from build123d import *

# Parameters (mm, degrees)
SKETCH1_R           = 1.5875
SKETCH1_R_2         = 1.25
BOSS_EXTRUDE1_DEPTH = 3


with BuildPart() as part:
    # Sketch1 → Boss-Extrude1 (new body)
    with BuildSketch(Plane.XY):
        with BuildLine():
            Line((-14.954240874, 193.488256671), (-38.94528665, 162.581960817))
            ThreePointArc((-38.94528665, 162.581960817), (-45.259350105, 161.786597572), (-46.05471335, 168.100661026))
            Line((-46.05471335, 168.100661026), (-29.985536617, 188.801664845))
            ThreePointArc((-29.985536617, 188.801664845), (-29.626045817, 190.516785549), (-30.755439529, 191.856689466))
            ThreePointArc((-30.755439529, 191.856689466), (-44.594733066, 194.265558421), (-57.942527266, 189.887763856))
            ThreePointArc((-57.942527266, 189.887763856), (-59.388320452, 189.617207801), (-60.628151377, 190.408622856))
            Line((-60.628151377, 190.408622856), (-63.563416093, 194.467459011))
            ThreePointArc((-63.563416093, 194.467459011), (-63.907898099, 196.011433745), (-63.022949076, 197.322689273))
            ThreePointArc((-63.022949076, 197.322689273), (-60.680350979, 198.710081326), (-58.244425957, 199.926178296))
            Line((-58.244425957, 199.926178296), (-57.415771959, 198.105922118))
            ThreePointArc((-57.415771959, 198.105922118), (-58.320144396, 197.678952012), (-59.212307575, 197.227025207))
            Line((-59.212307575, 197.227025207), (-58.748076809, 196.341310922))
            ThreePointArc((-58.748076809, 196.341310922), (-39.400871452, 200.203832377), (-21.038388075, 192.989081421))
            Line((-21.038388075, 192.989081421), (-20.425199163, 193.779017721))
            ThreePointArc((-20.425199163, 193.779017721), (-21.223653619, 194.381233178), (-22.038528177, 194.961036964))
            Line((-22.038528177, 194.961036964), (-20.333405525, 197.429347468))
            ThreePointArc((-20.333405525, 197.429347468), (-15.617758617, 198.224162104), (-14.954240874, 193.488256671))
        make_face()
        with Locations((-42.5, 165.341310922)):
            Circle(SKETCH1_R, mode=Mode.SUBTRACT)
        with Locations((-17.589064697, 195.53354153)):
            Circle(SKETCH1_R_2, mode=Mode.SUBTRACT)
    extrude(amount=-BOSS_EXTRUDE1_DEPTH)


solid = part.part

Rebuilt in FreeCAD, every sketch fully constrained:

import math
import FreeCAD as App
import Part
import Sketcher

V = App.Vector
Q = App.Units.Quantity

doc = App.newDocument("Part")
params = doc.addObject("Spreadsheet::Sheet", "Params")
for row, (alias, value) in enumerate([
    ("sketch1_radius", "36.000001 mm"),
    ("sketch1_radius2", "35 mm"),
    ("sketch1_radius3", "38 mm"),
    ("sketch1_radius4", "2 mm"),
    ("sketch1_radius5", "29 mm"),
    ("pad1_length", "3 mm"),
], start=1):
    params.set(f"A{row}", alias)
    params.set(f"B{row}", "=" + value)
    params.setAlias(f"B{row}", alias)

body = doc.addObject("PartDesign::Body", "Body")

# Sketch on XY plane
sketch1 = body.newObject("Sketcher::SketchObject", "Sketch")
sketch1.AttachmentSupport = (doc.getObject("XY_Plane"), [""])
sketch1.MapMode = "FlatFace"
sketch1.addGeometry(Part.LineSegment(V(-38.9, 162.6, 0), V(-15, 193.5, 0)), False)
sketch1.addGeometry(Part.ArcOfCircle(Part.Circle(V(-17.6, 195.5, 0), V(0, 0, 1), 3.3), math.radians(-38), math.radians(145)), False)
sketch1.addGeometry(Part.LineSegment(V(-20.3, 197.4, 0), V(-22, 195, 0)), False)
sketch1.addGeometry(Part.ArcOfCircle(Part.Circle(V(-42.5, 165.3, 0), V(0, 0, 1), 36), math.radians(52.18), math.radians(55.36)), False)
sketch1.addGeometry(Part.LineSegment(V(-20.4, 193.8, 0), V(-21, 193, 0)), False)
sketch1.addGeometry(Part.ArcOfCircle(Part.Circle(V(-42.5, 165.3, 0), V(0, 0, 1), 35), math.radians(52), math.radians(118)), False)
sketch1.addGeometry(Part.LineSegment(V(-58.7, 196.3, 0), V(-59.2, 197.2, 0)), False)
sketch1.addGeometry(Part.ArcOfCircle(Part.Circle(V(-42.5, 165.3, 0), V(0, 0, 1), 36), math.radians(114.48), math.radians(117.66)), False)
sketch1.addGeometry(Part.LineSegment(V(-57.4, 198.1, 0), V(-58.2, 199.9, 0)), False)
sketch1.addGeometry(Part.ArcOfCircle(Part.Circle(V(-42.5, 165.3, 0), V(0, 0, 1), 38), math.radians(114.48), math.radians(122.69)), False)
sketch1.addGeometry(Part.ArcOfCircle(Part.Circle(V(-61.9, 195.6, 0), V(0, 0, 1), 2), math.radians(123), math.radians(216)), False)
sketch1.addGeometry(Part.LineSegment(V(-63.6, 194.5, 0), V(-60.6, 190.4, 0)), False)
sketch1.addGeometry(Part.ArcOfCircle(Part.Circle(V(-59, 191.6, 0), V(0, 0, 1), 2), math.radians(-144), math.radians(-58)), False)
sketch1.addGeometry(Part.ArcOfCircle(Part.Circle(V(-42.5, 165.3, 0), V(0, 0, 1), 29), math.radians(66), math.radians(122)), False)
sketch1.addGeometry(Part.ArcOfCircle(Part.Circle(V(-31.6, 190, 0), V(0, 0, 1), 2), math.radians(-38), math.radians(66)), False)
sketch1.addGeometry(Part.LineSegment(V(-30, 188.8, 0), V(-46.1, 168.1, 0)), False)
sketch1.addGeometry(Part.ArcOfCircle(Part.Circle(V(-42.5, 165.3, 0), V(0, 0, 1), 4.5), math.radians(142), math.radians(322)), False)
sketch1.addGeometry(Part.Circle(V(-42.5, 165.3, 0), V(0, 0, 1), 1.6), False)
sketch1.addGeometry(Part.Circle(V(-17.6, 195.5, 0), V(0, 0, 1), 1.2), False)
sketch1.addConstraint(Sketcher.Constraint("Tangent", 0, 2, 1, 1))
sketch1.addConstraint(Sketcher.Constraint("Tangent", 1, 2, 2, 1))
sketch1.addConstraint(Sketcher.Constraint("Coincident", 2, 2, 3, 2))
sketch1.addConstraint(Sketcher.Constraint("Coincident", 3, 1, 4, 1))
sketch1.addConstraint(Sketcher.Constraint("Coincident", 4, 2, 5, 1))
sketch1.addConstraint(Sketcher.Constraint("Coincident", 5, 2, 6, 1))
sketch1.addConstraint(Sketcher.Constraint("Coincident", 6, 2, 7, 2))
sketch1.addConstraint(Sketcher.Constraint("Coincident", 7, 1, 8, 1))
sketch1.addConstraint(Sketcher.Constraint("Coincident", 8, 2, 9, 1))
sketch1.addConstraint(Sketcher.Constraint("Tangent", 9, 2, 10, 1))
sketch1.addConstraint(Sketcher.Constraint("Tangent", 10, 2, 11, 1))
sketch1.addConstraint(Sketcher.Constraint("Tangent", 11, 2, 12, 1))
sketch1.addConstraint(Sketcher.Constraint("Tangent", 12, 2, 13, 2))
sketch1.addConstraint(Sketcher.Constraint("Tangent", 13, 1, 14, 2))
sketch1.addConstraint(Sketcher.Constraint("Tangent", 14, 1, 15, 1))
sketch1.addConstraint(Sketcher.Constraint("Tangent", 15, 2, 16, 1))
sketch1.addConstraint(Sketcher.Constraint("Tangent", 16, 2, 0, 1))
sketch1.addConstraint(Sketcher.Constraint("Coincident", 5, 3, 3, 3))
sketch1.addConstraint(Sketcher.Constraint("Coincident", 7, 3, 3, 3))
sketch1.addConstraint(Sketcher.Constraint("Coincident", 9, 3, 3, 3))
sketch1.addConstraint(Sketcher.Constraint("Coincident", 13, 3, 3, 3))
sketch1.addConstraint(Sketcher.Constraint("Coincident", 16, 3, 3, 3))
sketch1.addConstraint(Sketcher.Constraint("Coincident", 17, 3, 3, 3))
sketch1.addConstraint(Sketcher.Constraint("Coincident", 18, 3, 1, 3))
sketch1.addConstraint(Sketcher.Constraint("Equal", 3, 7))
sketch1.addConstraint(Sketcher.Constraint("Equal", 10, 12))
sketch1.addConstraint(Sketcher.Constraint("Equal", 12, 14))
sketch1.addConstraint(Sketcher.Constraint("Parallel", 0, 4))
sketch1.addConstraint(Sketcher.Constraint("Parallel", 4, 15))
sketch1.addConstraint(Sketcher.Constraint("Radius", 3, Q("36.000001 mm")))
sketch1.addConstraint(Sketcher.Constraint("Radius", 5, Q("35 mm")))
sketch1.addConstraint(Sketcher.Constraint("Radius", 9, Q("38 mm")))
sketch1.addConstraint(Sketcher.Constraint("Radius", 10, Q("2 mm")))
sketch1.addConstraint(Sketcher.Constraint("Radius", 13, Q("29 mm")))
sketch1.addConstraint(Sketcher.Constraint("Diameter", 18, Q("2.5 mm")))
sketch1.addConstraint(Sketcher.Constraint("Radius", 16, Q("4.5 mm")))
sketch1.addConstraint(Sketcher.Constraint("Distance", 2, Q("3 mm")))
sketch1.addConstraint(Sketcher.Constraint("Diameter", 17, Q("3.175 mm")))
sketch1.addConstraint(Sketcher.Constraint("DistanceY", 7, 3, 5, 2, Q("30.999999 mm")))
sketch1.addConstraint(Sketcher.Constraint("DistanceX", 3, 3, -1, 1, Q("42.5 mm")))
sketch1.addConstraint(Sketcher.Constraint("Radius", 1, Q("3.335489 mm")))
sketch1.addConstraint(Sketcher.Constraint("DistanceY", 10, 2, 10, 3, Q("1.172 mm")))
sketch1.addConstraint(Sketcher.Constraint("DistanceX", 12, 3, 12, 2, Q("1.065002 mm")))
sketch1.addConstraint(Sketcher.Constraint("DistanceX", 3, 1, -1, 1, Q("20.425199 mm")))
sketch1.addConstraint(Sketcher.Constraint("DistanceY", 14, 3, 1, 3, Q("5.505499 mm")))
sketch1.addConstraint(Sketcher.Constraint("DistanceX", 6, 2, 14, 3, Q("27.646898 mm")))
sketch1.addConstraint(Sketcher.Constraint("DistanceY", 12, 3, 7, 1, Q("6.525299 mm")))
sketch1.addConstraint(Sketcher.Constraint("Distance", 0, Q("39.125048 mm")))
sketch1.addConstraint(Sketcher.Constraint("DistanceY", -1, 1, 1, 3, Q("195.533542 mm")))
sketch1.addConstraint(Sketcher.Constraint("DistanceY", -1, 1, 8, 2, Q("199.926178 mm")))
sketch1.setExpression("Constraints[29]", "Params.sketch1_radius")
sketch1.setExpression("Constraints[30]", "Params.sketch1_radius2")
sketch1.setExpression("Constraints[31]", "Params.sketch1_radius3")
sketch1.setExpression("Constraints[32]", "Params.sketch1_radius4")
sketch1.setExpression("Constraints[33]", "Params.sketch1_radius5")
pad1 = body.newObject("PartDesign::Pad", "Pad")
pad1.Profile = sketch1
pad1.setExpression("Length", "Params.pad1_length")
pad1.Reversed = True

doc.recompute()
